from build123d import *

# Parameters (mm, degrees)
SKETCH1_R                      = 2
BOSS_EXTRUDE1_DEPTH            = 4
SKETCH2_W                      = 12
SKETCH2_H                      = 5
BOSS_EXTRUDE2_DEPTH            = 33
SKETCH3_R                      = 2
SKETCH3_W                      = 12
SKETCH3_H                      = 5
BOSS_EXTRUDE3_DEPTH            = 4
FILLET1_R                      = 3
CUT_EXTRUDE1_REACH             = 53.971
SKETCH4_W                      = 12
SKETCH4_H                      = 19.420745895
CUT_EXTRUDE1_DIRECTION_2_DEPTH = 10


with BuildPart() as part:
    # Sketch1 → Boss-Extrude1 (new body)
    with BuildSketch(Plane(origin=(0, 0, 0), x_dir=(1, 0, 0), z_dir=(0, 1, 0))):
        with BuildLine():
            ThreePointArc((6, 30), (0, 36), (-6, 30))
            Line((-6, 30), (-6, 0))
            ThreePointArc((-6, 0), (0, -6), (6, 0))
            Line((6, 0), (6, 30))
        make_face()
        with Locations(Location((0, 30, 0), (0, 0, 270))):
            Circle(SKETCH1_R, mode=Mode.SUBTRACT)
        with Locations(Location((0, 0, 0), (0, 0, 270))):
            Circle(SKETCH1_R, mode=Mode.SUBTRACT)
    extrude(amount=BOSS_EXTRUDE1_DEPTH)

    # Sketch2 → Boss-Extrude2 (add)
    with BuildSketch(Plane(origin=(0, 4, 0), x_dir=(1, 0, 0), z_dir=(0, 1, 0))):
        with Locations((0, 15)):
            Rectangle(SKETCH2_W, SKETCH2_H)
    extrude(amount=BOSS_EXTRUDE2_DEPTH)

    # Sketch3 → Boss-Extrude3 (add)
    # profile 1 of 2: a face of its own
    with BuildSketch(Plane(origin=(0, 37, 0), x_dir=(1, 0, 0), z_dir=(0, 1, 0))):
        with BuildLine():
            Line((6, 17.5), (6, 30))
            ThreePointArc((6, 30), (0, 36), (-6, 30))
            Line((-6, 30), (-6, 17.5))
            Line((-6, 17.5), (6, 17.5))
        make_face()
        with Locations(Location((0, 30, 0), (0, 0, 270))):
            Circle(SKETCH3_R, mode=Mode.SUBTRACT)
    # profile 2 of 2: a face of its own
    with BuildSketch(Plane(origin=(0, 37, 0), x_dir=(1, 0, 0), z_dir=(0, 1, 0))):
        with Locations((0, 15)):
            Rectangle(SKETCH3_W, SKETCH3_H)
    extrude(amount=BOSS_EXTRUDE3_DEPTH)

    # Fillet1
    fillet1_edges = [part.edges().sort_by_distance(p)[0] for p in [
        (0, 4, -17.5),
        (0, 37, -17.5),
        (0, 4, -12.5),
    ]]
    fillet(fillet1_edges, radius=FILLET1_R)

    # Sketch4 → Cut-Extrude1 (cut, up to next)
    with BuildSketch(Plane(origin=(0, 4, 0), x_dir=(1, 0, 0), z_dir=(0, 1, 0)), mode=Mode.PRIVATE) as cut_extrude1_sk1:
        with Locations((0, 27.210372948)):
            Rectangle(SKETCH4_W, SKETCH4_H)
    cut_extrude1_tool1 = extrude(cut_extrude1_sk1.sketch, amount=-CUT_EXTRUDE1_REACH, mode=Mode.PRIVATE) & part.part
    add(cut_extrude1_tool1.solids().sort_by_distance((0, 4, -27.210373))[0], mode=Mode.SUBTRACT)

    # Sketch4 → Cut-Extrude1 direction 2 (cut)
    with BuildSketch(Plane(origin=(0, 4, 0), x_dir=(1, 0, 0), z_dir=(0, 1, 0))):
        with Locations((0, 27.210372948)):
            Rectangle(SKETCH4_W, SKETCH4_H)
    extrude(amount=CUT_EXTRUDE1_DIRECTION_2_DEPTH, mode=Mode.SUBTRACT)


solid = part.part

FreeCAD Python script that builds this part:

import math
import FreeCAD as App
import Part
import Sketcher


def edges_at(feature, points):
    """Names of the edges that pass closest to the given points."""
    edges = feature.Shape.Edges
    near = lambda p: min(range(len(edges)), key=lambda i: edges[i].distToShape(Part.Vertex(*p))[0])
    return sorted({f"Edge{near(p) + 1}" for p in points})

doc = App.newDocument("Part")
body = doc.addObject("PartDesign::Body", "Body")

# Sketch on XZ plane
sketch1 = body.newObject("Sketcher::SketchObject", "Sketch")
sketch1.AttachmentSupport = (doc.getObject("XZ_Plane"), [""])
sketch1.MapMode = "FlatFace"
sketch1.addGeometry(Part.ArcOfCircle(Part.Circle(App.Vector(0, -30, 0), App.Vector(0, 0, 1), 6), math.radians(180), math.radians(360)), False)
sketch1.addGeometry(Part.LineSegment(App.Vector(-6, -30, 0), App.Vector(-6, 0, 0)), False)
sketch1.addGeometry(Part.ArcOfCircle(Part.Circle(App.Vector(0, 0, 0), App.Vector(0, 0, 1), 6), math.radians(0), math.radians(180)), False)
sketch1.addGeometry(Part.LineSegment(App.Vector(6, 0, 0), App.Vector(6, -30, 0)), False)
sketch1.addGeometry(Part.Circle(App.Vector(0, 0, 0), App.Vector(0, 0, 1), 2), False)
sketch1.addGeometry(Part.Circle(App.Vector(0, -30, 0), App.Vector(0, 0, 1), 2), False)
sketch1.addConstraint(Sketcher.Constraint("Tangent", 0, 1, 1, 1))
sketch1.addConstraint(Sketcher.Constraint("Tangent", 1, 2, 2, 2))
sketch1.addConstraint(Sketcher.Constraint("Tangent", 2, 1, 3, 1))
sketch1.addConstraint(Sketcher.Constraint("Tangent", 3, 2, 0, 2))
sketch1.addConstraint(Sketcher.Constraint("Vertical", 1))
sketch1.addConstraint(Sketcher.Constraint("Vertical", 3))
sketch1.addConstraint(Sketcher.Constraint("Coincident", 2, 3, -1, 1))
sketch1.addConstraint(Sketcher.Constraint("Coincident", 4, 3, -1, 1))
sketch1.addConstraint(Sketcher.Constraint("Coincident", 5, 3, 0, 3))
sketch1.addConstraint(Sketcher.Constraint("Equal", 4, 5))
sketch1.addConstraint(Sketcher.Constraint("Diameter", 4, 4.0))
sketch1.addConstraint(Sketcher.Constraint("Radius", 0, 6.0))
sketch1.addConstraint(Sketcher.Constraint("DistanceY", 1, 1, 1, 2, 30.0))
pad1 = body.newObject("PartDesign::Pad", "Pad")
pad1.Profile = sketch1
pad1.Length = 4
pad1.Reversed = True

# Sketch on XZ plane
sketch2 = body.newObject("Sketcher::SketchObject", "Sketch001")
sketch2.AttachmentSupport = (doc.getObject("XZ_Plane"), [""])
sketch2.MapMode = "FlatFace"
sketch2.AttachmentOffset = App.Placement(App.Vector(0, 0, -4), App.Rotation())
sketch2.addGeometry(Part.LineSegment(App.Vector(-6, -18, 0), App.Vector(-6, -12, 0)), False)
sketch2.addGeometry(Part.LineSegment(App.Vector(-6, -12, 0), App.Vector(6, -12, 0)), False)
sketch2.addGeometry(Part.LineSegment(App.Vector(6, -12, 0), App.Vector(6, -18, 0)), False)
sketch2.addGeometry(Part.LineSegment(App.Vector(6, -18, 0), App.Vector(-6, -18, 0)), False)
sketch2.addConstraint(Sketcher.Constraint("Coincident", 0, 2, 1, 1))
sketch2.addConstraint(Sketcher.Constraint("Coincident", 1, 2, 2, 1))
sketch2.addConstraint(Sketcher.Constraint("Coincident", 2, 2, 3, 1))
sketch2.addConstraint(Sketcher.Constraint("Coincident", 3, 2, 0, 1))
sketch2.addConstraint(Sketcher.Constraint("Vertical", 0))
sketch2.addConstraint(Sketcher.Constraint("Horizontal", 1))
sketch2.addConstraint(Sketcher.Constraint("Vertical", 2))
sketch2.addConstraint(Sketcher.Constraint("Horizontal", 3))
sketch2.addConstraint(Sketcher.Constraint("DistanceX", 1, 1, 1, 2, 12.0))
sketch2.addConstraint(Sketcher.Constraint("DistanceY", 0, 1, 0, 2, 5.0))
sketch2.addConstraint(Sketcher.Constraint("DistanceX", 0, 2, -1, 1, 6.0))
sketch2.addConstraint(Sketcher.Constraint("DistanceY", 0, 2, -1, 1, 12.5))
pad2 = body.newObject("PartDesign::Pad", "Pad001")
pad2.Profile = sketch2
pad2.Length = 33
pad2.Reversed = True

# Sketch on XZ plane
sketch3 = body.newObject("Sketcher::SketchObject", "Sketch002")
sketch3.AttachmentSupport = (doc.getObject("XZ_Plane"), [""])
sketch3.MapMode = "FlatFace"
sketch3.AttachmentOffset = App.Placement(App.Vector(0, 0, -37), App.Rotation())
sketch3.addGeometry(Part.ArcOfCircle(Part.Circle(App.Vector(0, -30, 0), App.Vector(0, 0, 1), 6), math.radians(180), math.radians(360)), False)
sketch3.addGeometry(Part.LineSegment(App.Vector(-6, -30, 0), App.Vector(-6, -12.5, 0)), False)
sketch3.addGeometry(Part.LineSegment(App.Vector(-6, -12.5, 0), App.Vector(6, -12.5, 0)), False)
sketch3.addGeometry(Part.LineSegment(App.Vector(6, -12.5, 0), App.Vector(6, -30, 0)), False)
sketch3.addGeometry(Part.Circle(App.Vector(0, -30, 0), App.Vector(0, 0, 1), 2), False)
sketch3.addConstraint(Sketcher.Constraint("Tangent", 0, 1, 1, 1))
sketch3.addConstraint(Sketcher.Constraint("Coincident", 1, 2, 2, 1))
sketch3.addConstraint(Sketcher.Constraint("Coincident", 2, 2, 3, 1))
sketch3.addConstraint(Sketcher.Constraint("Tangent", 3, 2, 0, 2))
sketch3.addConstraint(Sketcher.Constraint("Vertical", 1))
sketch3.addConstraint(Sketcher.Constraint("Horizontal", 2))
sketch3.addConstraint(Sketcher.Constraint("Vertical", 3))
sketch3.addConstraint(Sketcher.Constraint("Coincident", 4, 3, 0, 3))
sketch3.addConstraint(Sketcher.Constraint("PointOnObject", 0, 3, -2))
sketch3.addConstraint(Sketcher.Constraint("Diameter", 4, 4.0))
sketch3.addConstraint(Sketcher.Constraint("Radius", 0, 6.0))
sketch3.addConstraint(Sketcher.Constraint("DistanceY", 1, 1, 1, 2, 17.5))
sketch3.addConstraint(Sketcher.Constraint("DistanceY", 0, 3, -1, 1, 30.0))
pad3 = body.newObject("PartDesign::Pad", "Pad002")
pad3.Profile = sketch3
pad3.Length = 4
pad3.Reversed = True
doc.recompute()

fillet = body.newObject("PartDesign::Fillet", "Fillet")
fillet.Base = (pad3, edges_at(pad3, [(0, 4, -17.5), (0, 37, -17.5), (0, 4, -12.5)]))
fillet.Radius = 3

# Sketch on XZ plane
sketch4 = body.newObject("Sketcher::SketchObject", "Sketch003")
sketch4.AttachmentSupport = (doc.getObject("XZ_Plane"), [""])
sketch4.MapMode = "FlatFace"
sketch4.AttachmentOffset = App.Placement(App.Vector(0, 0, -4), App.Rotation())
sketch4.addGeometry(Part.LineSegment(App.Vector(-6, -37, 0), App.Vector(-6, -18, 0)), False)
sketch4.addGeometry(Part.LineSegment(App.Vector(-6, -18, 0), App.Vector(6, -18, 0)), False)
sketch4.addGeometry(Part.LineSegment(App.Vector(6, -18, 0), App.Vector(6, -37, 0)), False)
sketch4.addGeometry(Part.LineSegment(App.Vector(6, -37, 0), App.Vector(-6, -37, 0)), False)
sketch4.addConstraint(Sketcher.Constraint("Coincident", 0, 2, 1, 1))
sketch4.addConstraint(Sketcher.Constraint("Coincident", 1, 2, 2, 1))
sketch4.addConstraint(Sketcher.Constraint("Coincident", 2, 2, 3, 1))
sketch4.addConstraint(Sketcher.Constraint("Coincident", 3, 2, 0, 1))
sketch4.addConstraint(Sketcher.Constraint("Vertical", 0))
sketch4.addConstraint(Sketcher.Constraint("Horizontal", 1))
sketch4.addConstraint(Sketcher.Constraint("Vertical", 2))
sketch4.addConstraint(Sketcher.Constraint("Horizontal", 3))
sketch4.addConstraint(Sketcher.Constraint("DistanceX", 1, 1, 1, 2, 12.0))
sketch4.addConstraint(Sketcher.Constraint("DistanceX", 0, 2, -1, 1, 6.0))
sketch4.addConstraint(Sketcher.Constraint("DistanceY", 0, 2, -1, 1, 17.5))
sketch4.addConstraint(Sketcher.Constraint("DistanceY", 0, 1, 0, 2, 19.420746))
pocket1 = body.newObject("PartDesign::Pocket", "Pocket")
pocket1.Profile = sketch4
pocket1.Type = "UpToFirst"
pocket1.Reversed = True

# Sketch on XZ plane
sketch5 = body.newObject("Sketcher::SketchObject", "Sketch004")
sketch5.AttachmentSupport = (doc.getObject("XZ_Plane"), [""])
sketch5.MapMode = "FlatFace"
sketch5.AttachmentOffset = App.Placement(App.Vector(0, 0, -4), App.Rotation())
sketch5.addGeometry(Part.LineSegment(App.Vector(-6, -37, 0), App.Vector(-6, -18, 0)), False)
sketch5.addGeometry(Part.LineSegment(App.Vector(-6, -18, 0), App.Vector(6, -18, 0)), False)
sketch5.addGeometry(Part.LineSegment(App.Vector(6, -18, 0), App.Vector(6, -37, 0)), False)
sketch5.addGeometry(Part.LineSegment(App.Vector(6, -37, 0), App.Vector(-6, -37, 0)), False)
sketch5.addConstraint(Sketcher.Constraint("Coincident", 0, 2, 1, 1))
sketch5.addConstraint(Sketcher.Constraint("Coincident", 1, 2, 2, 1))
sketch5.addConstraint(Sketcher.Constraint("Coincident", 2, 2, 3, 1))
sketch5.addConstraint(Sketcher.Constraint("Coincident", 3, 2, 0, 1))
sketch5.addConstraint(Sketcher.Constraint("Vertical", 0))
sketch5.addConstraint(Sketcher.Constraint("Horizontal", 1))
sketch5.addConstraint(Sketcher.Constraint("Vertical", 2))
sketch5.addConstraint(Sketcher.Constraint("Horizontal", 3))
sketch5.addConstraint(Sketcher.Constraint("DistanceX", 1, 1, 1, 2, 12.0))
sketch5.addConstraint(Sketcher.Constraint("DistanceX", 0, 2, -1, 1, 6.0))
sketch5.addConstraint(Sketcher.Constraint("DistanceY", 0, 2, -1, 1, 17.5))
sketch5.addConstraint(Sketcher.Constraint("DistanceY", 0, 1, 0, 2, 19.420746))
pocket2 = body.newObject("PartDesign::Pocket", "Pocket001")
pocket2.Profile = sketch5
pocket2.Length = 10

doc.recompute()
